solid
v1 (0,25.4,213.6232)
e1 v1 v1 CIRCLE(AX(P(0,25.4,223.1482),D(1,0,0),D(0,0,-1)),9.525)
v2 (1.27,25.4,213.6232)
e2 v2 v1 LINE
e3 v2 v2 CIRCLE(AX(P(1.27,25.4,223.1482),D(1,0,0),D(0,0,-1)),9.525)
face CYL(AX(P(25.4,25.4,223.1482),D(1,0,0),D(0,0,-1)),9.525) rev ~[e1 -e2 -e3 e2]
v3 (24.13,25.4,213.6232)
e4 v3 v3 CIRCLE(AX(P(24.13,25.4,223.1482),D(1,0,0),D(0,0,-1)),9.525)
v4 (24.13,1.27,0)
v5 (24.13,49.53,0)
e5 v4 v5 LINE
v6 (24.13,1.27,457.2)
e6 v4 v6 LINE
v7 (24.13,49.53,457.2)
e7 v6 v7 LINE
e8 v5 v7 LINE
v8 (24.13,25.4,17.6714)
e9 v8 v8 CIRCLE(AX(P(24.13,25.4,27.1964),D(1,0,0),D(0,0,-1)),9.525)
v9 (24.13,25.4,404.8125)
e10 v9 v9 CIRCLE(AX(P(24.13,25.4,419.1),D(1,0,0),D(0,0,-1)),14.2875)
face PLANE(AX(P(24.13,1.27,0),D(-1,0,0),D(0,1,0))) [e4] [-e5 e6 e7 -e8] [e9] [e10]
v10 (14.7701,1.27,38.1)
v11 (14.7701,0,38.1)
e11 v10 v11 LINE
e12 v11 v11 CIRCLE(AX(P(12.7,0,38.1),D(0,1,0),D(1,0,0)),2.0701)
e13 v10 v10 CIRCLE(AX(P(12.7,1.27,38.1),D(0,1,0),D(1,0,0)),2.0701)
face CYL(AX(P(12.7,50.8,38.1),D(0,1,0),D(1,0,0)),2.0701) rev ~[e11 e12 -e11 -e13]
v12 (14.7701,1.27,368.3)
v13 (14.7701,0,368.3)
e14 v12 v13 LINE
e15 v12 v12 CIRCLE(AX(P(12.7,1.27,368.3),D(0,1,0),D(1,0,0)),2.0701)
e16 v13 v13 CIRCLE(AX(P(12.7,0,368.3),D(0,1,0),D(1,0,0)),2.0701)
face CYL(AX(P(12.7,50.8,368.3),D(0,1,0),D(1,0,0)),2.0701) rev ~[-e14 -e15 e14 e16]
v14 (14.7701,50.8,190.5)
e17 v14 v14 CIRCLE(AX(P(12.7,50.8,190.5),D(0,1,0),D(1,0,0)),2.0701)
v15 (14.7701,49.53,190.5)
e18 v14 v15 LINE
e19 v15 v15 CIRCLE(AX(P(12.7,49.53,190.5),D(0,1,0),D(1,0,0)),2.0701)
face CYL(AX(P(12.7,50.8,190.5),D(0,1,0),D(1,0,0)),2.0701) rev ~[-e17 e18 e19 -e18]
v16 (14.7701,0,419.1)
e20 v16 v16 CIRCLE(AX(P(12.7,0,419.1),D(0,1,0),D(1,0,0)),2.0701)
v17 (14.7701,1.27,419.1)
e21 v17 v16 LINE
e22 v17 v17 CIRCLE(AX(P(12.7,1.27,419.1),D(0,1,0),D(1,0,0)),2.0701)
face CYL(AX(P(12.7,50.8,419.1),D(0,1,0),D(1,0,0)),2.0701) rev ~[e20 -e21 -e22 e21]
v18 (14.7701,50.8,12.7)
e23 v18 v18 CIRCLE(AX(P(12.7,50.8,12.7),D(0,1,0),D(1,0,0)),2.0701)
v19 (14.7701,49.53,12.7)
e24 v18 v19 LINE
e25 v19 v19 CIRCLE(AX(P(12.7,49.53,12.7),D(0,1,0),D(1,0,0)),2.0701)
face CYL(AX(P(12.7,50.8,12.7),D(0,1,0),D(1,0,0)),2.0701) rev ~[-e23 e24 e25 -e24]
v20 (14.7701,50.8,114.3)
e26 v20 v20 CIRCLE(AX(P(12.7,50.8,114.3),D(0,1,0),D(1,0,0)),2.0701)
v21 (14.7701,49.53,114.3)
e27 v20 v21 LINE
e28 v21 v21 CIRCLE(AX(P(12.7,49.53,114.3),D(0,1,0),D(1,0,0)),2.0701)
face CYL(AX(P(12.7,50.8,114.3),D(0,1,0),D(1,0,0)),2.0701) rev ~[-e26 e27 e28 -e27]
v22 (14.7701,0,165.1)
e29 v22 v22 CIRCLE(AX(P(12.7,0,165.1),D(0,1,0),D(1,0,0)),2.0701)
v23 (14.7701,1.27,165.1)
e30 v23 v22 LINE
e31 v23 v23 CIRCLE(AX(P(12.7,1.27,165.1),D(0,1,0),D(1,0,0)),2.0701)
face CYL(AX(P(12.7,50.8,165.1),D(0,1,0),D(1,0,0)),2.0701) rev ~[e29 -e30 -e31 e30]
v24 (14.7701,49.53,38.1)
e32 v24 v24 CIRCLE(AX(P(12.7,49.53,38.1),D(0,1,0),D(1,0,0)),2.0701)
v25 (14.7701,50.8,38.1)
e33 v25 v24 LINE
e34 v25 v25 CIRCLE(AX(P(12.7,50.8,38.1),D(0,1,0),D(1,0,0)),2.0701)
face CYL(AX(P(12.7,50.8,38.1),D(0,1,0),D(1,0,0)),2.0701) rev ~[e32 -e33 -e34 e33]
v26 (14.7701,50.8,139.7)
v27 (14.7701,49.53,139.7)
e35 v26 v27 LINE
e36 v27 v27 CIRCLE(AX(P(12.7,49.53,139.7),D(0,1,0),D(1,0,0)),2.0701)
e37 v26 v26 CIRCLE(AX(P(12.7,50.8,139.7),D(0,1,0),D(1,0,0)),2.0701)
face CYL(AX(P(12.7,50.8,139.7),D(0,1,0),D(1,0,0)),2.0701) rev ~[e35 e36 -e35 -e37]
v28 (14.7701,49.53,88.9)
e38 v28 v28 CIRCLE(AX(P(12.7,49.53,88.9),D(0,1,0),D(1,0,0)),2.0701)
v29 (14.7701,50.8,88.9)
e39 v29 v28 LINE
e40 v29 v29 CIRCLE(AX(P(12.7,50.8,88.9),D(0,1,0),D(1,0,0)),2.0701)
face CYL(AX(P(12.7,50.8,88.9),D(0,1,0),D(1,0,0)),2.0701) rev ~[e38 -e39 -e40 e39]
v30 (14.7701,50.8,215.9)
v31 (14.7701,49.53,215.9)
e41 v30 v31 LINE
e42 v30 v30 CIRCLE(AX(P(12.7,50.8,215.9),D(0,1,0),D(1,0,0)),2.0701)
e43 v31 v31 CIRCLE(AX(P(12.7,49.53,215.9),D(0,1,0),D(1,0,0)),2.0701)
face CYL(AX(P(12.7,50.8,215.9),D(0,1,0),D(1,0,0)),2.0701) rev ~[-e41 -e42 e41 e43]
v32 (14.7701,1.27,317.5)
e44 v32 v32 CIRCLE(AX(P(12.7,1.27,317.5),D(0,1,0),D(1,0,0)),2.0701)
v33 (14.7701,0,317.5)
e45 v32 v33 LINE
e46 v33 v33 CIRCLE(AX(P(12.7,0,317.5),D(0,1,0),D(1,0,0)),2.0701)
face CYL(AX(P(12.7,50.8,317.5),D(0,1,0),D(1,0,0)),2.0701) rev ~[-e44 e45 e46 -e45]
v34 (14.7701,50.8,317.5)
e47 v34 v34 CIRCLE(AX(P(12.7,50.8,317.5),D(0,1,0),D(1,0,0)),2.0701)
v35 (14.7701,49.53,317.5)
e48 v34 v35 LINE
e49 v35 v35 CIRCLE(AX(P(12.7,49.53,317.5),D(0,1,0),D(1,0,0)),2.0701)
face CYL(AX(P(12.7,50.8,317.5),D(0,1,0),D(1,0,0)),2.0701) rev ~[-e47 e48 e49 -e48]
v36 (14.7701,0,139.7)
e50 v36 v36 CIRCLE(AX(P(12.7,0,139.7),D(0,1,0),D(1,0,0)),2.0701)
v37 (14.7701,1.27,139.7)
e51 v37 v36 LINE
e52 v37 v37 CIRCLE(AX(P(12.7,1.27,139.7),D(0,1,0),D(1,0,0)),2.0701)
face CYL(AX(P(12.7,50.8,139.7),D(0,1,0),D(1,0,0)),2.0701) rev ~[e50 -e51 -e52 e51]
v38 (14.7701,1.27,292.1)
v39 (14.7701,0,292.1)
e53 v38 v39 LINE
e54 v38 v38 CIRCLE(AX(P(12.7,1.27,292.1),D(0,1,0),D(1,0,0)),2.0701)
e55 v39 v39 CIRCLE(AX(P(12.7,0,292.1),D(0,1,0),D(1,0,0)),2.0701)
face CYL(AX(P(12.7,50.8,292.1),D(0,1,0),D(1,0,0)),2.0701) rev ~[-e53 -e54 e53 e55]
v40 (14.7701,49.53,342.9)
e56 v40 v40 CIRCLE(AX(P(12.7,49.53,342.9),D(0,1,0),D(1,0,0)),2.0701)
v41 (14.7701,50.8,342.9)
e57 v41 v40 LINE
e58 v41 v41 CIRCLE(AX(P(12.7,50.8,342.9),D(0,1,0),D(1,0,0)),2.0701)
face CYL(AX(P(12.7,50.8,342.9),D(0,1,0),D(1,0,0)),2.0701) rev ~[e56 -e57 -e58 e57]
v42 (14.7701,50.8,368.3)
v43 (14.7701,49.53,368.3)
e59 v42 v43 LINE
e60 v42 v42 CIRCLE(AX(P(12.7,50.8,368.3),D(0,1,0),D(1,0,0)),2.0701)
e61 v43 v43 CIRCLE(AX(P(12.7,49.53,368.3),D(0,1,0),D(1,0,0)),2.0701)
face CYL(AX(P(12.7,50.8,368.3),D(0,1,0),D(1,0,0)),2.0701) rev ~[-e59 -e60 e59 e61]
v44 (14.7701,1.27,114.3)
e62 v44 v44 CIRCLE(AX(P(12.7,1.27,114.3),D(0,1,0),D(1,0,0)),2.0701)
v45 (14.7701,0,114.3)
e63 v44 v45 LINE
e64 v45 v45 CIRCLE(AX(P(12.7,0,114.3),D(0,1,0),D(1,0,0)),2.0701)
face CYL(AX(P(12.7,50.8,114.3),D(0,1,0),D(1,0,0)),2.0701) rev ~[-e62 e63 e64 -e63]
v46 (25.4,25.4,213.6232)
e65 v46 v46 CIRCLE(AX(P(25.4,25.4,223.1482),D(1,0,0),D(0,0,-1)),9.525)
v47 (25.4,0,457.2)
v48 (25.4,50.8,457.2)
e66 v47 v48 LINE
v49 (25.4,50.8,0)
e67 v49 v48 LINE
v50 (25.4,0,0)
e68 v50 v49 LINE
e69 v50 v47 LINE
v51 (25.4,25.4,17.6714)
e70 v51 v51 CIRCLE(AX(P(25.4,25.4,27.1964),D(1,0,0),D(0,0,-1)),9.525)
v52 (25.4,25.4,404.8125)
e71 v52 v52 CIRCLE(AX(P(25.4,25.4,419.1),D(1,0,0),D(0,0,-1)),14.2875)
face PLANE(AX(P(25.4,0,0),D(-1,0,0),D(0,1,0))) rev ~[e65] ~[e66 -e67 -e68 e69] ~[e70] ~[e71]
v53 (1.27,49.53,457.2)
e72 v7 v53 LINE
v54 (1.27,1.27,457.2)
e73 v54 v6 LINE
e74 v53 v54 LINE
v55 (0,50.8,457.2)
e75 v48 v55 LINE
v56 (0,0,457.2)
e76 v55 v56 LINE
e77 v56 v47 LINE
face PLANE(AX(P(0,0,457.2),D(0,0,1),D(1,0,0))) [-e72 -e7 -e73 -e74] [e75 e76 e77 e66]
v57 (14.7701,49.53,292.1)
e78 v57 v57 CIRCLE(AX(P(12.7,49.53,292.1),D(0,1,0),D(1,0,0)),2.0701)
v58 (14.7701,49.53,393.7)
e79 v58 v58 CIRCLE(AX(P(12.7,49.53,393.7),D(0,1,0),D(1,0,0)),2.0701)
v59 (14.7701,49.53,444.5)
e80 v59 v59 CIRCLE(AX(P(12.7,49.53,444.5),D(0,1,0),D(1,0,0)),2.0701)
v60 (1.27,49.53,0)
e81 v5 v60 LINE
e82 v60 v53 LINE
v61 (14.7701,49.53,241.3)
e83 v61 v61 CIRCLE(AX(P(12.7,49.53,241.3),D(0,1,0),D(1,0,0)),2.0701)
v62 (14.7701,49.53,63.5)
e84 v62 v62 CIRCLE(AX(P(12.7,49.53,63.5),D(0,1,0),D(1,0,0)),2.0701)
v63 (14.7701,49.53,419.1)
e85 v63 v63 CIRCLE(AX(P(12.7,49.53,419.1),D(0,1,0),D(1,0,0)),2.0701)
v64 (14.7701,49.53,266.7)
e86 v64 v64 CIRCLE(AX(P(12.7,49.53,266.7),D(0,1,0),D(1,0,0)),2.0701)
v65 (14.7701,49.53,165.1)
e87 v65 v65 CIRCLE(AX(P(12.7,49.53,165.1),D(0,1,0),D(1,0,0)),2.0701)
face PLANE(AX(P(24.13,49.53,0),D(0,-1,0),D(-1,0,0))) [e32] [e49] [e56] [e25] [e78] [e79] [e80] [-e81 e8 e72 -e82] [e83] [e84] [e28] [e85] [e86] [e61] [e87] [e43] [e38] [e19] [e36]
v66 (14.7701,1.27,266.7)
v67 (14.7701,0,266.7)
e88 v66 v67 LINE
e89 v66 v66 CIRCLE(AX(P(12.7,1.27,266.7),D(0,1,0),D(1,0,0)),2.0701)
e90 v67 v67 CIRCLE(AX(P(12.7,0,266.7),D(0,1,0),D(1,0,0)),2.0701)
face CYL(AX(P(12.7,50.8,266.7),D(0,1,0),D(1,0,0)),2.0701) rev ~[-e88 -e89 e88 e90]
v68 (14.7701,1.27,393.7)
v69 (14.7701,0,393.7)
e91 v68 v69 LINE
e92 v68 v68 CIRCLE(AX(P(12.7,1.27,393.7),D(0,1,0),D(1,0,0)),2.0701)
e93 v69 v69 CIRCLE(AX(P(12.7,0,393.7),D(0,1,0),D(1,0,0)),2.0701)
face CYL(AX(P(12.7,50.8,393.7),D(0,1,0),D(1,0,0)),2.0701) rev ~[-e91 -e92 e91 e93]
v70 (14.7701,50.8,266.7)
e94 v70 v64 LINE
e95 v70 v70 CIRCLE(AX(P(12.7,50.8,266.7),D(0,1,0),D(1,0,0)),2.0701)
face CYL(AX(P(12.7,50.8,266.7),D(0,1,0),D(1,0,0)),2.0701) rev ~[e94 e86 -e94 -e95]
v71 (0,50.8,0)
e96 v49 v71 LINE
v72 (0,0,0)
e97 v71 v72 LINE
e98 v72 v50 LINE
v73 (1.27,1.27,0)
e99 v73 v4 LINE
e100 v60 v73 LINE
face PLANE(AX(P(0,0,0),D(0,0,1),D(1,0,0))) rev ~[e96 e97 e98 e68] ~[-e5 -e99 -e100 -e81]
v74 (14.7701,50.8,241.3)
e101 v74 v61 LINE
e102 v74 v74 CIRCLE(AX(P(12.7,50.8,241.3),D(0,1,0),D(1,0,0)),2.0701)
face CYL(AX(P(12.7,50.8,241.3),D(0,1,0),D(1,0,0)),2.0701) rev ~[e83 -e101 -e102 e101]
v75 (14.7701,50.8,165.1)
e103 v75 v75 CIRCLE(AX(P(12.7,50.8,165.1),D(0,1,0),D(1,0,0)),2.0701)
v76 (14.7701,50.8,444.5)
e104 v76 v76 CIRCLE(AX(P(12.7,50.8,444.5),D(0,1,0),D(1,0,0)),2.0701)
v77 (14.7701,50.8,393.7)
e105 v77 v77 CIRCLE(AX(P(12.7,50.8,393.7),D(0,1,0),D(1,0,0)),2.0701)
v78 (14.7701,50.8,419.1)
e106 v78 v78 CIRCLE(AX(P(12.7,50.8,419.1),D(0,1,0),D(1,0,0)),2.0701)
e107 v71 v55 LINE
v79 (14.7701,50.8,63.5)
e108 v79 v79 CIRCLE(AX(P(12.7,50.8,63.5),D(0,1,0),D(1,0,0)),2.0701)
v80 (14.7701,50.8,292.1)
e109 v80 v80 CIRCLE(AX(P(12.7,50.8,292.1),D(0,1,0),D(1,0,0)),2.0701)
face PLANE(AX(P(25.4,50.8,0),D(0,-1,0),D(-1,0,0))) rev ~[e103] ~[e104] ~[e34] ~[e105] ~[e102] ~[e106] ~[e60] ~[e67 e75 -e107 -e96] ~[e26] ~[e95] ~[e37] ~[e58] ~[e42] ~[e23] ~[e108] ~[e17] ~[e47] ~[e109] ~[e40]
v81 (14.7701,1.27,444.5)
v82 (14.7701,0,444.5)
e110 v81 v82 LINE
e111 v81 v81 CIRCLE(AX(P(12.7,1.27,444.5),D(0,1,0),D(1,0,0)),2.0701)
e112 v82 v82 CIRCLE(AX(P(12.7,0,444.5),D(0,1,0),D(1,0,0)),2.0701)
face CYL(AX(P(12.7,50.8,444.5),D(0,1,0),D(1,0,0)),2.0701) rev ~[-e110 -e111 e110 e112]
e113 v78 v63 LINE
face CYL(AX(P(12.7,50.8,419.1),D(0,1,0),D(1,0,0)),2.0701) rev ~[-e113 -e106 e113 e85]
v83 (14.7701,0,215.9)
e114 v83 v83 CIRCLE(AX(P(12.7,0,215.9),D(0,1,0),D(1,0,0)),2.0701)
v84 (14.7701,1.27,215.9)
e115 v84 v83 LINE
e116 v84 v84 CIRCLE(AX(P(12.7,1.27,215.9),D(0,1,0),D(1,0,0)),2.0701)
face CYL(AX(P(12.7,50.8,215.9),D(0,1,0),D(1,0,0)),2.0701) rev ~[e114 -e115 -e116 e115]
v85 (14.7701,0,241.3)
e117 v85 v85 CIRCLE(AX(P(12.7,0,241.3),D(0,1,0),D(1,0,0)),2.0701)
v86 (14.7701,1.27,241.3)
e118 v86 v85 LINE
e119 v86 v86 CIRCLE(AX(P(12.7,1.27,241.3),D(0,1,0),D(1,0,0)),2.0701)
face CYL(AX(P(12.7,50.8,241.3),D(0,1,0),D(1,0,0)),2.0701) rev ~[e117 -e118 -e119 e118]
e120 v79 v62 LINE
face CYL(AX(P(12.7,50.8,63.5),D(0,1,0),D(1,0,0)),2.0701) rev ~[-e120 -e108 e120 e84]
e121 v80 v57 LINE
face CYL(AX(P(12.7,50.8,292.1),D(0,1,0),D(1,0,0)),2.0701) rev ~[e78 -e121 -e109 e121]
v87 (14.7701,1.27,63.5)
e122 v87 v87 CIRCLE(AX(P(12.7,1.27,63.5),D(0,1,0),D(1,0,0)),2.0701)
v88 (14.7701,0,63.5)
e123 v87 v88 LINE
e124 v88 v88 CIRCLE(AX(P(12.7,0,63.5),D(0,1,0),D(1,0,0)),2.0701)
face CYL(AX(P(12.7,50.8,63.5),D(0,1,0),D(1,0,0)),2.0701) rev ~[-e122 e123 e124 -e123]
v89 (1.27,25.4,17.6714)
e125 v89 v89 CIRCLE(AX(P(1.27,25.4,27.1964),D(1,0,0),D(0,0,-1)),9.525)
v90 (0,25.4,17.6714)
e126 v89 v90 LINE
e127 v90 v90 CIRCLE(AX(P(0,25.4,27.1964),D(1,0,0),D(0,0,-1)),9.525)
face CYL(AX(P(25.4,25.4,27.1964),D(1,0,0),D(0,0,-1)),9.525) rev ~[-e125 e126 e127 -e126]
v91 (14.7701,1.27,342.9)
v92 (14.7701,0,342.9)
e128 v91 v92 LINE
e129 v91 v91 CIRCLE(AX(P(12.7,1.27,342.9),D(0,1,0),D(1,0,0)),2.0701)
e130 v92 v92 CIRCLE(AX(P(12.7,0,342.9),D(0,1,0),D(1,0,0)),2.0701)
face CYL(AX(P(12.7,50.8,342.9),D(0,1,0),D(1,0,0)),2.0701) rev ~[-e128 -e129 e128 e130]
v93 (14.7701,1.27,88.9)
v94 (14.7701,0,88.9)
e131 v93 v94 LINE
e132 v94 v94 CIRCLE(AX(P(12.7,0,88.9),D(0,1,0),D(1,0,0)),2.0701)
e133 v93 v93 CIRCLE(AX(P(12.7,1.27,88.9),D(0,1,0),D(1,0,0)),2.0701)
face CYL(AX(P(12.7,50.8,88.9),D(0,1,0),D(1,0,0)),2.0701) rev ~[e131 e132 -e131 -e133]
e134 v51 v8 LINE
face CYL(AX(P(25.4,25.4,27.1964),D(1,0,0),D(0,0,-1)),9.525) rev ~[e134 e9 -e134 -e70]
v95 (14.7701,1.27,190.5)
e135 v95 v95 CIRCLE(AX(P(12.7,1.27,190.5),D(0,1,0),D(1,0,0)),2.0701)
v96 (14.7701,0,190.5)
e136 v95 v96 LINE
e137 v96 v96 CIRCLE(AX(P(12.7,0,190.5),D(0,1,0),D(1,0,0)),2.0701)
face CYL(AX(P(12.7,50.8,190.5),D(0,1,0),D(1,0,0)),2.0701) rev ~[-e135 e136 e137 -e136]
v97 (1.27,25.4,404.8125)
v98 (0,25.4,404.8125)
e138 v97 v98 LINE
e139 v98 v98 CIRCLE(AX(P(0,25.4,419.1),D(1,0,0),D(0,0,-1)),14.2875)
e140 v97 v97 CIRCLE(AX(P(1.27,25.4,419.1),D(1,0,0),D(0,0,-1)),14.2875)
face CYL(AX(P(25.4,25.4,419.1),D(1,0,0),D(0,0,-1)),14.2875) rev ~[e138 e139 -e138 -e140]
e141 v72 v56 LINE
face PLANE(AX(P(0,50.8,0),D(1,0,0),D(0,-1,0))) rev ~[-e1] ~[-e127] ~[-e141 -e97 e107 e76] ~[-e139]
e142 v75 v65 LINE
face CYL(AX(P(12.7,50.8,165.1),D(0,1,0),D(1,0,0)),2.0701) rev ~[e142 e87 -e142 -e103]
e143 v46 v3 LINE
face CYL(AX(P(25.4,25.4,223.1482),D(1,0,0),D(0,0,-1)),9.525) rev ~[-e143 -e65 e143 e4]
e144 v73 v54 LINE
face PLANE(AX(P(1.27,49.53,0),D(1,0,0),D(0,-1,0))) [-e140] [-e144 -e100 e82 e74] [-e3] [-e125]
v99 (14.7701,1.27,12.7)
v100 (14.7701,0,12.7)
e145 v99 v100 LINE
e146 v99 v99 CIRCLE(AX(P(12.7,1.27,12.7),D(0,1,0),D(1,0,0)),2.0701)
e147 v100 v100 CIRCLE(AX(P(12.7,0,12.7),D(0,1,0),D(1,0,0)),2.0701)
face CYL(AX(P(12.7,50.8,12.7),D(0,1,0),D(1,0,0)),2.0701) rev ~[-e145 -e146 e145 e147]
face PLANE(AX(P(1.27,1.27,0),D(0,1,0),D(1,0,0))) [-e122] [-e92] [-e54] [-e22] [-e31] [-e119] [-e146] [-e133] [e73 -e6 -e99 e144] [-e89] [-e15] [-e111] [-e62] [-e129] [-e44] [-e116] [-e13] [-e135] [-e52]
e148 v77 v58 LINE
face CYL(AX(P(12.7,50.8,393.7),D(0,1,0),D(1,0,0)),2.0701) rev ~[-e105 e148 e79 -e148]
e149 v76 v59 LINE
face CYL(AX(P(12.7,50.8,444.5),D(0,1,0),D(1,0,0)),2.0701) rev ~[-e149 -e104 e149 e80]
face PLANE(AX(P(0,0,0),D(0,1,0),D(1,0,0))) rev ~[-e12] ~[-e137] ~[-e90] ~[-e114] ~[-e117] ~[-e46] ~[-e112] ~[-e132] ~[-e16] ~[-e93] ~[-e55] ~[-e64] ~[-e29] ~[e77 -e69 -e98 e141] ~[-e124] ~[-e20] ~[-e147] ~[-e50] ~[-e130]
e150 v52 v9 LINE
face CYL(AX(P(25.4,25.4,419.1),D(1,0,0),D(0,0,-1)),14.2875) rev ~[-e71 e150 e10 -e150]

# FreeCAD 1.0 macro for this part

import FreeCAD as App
import Part
import Sketcher
Q = App.Units.Quantity

doc = App.newDocument("Part")
body = doc.addObject("PartDesign::Body", "Body")

sketch1 = doc.addObject("Sketcher::SketchObject", "Sketch")
body.addObject(sketch1)
sketch1.AttachmentSupport = (doc.XY_Plane, [""])
sketch1.MapMode = "FlatFace"
sketch1.addGeometry([
    Part.LineSegment(App.Vector(0, 50.8, 0), App.Vector(0, 0, 0)),
    Part.LineSegment(App.Vector(0, 0, 0), App.Vector(25.4, 0, 0)),
    Part.LineSegment(App.Vector(25.4, 0, 0), App.Vector(25.4, 50.8, 0)),
    Part.LineSegment(App.Vector(25.4, 50.8, 0), App.Vector(0, 50.8, 0)),
    Part.LineSegment(App.Vector(24.13, 1.27, 0), App.Vector(1.27, 1.27, 0)),
    Part.LineSegment(App.Vector(1.27, 1.27, 0), App.Vector(1.27, 49.53, 0)),
    Part.LineSegment(App.Vector(1.27, 49.53, 0), App.Vector(24.13, 49.53, 0)),
    Part.LineSegment(App.Vector(24.13, 49.53, 0), App.Vector(24.13, 1.27, 0)),
], False)
sketch1.addConstraint([
    Sketcher.Constraint("Coincident", 0, 2, 1, 1),
    Sketcher.Constraint("Coincident", 1, 2, 2, 1),
    Sketcher.Constraint("Coincident", 2, 2, 3, 1),
    Sketcher.Constraint("Coincident", 3, 2, 0, 1),
    Sketcher.Constraint("Coincident", 4, 2, 5, 1),
    Sketcher.Constraint("Coincident", 5, 2, 6, 1),
    Sketcher.Constraint("Coincident", 6, 2, 7, 1),
    Sketcher.Constraint("Coincident", 7, 2, 4, 1),
    Sketcher.Constraint("Vertical", 0),
    Sketcher.Constraint("Horizontal", 1),
    Sketcher.Constraint("Vertical", 2),
    Sketcher.Constraint("Horizontal", 3),
    Sketcher.Constraint("Horizontal", 4),
    Sketcher.Constraint("Vertical", 5),
    Sketcher.Constraint("Horizontal", 6),
    Sketcher.Constraint("Vertical", 7),
    Sketcher.Constraint("Coincident", 0, 2, -1, 1),
    Sketcher.Constraint("DistanceX", 1, 1, 1, 2, Q("1 in")),
    Sketcher.Constraint("DistanceY", 0, 2, 0, 1, Q("2 in")),
    Sketcher.Constraint("DistanceX", -1, 1, 4, 2, Q("0.05 in")),
    Sketcher.Constraint("DistanceY", -1, 1, 4, 2, Q("0.05 in")),
    Sketcher.Constraint("DistanceY", 5, 2, 3, 2, Q("0.05 in")),
    Sketcher.Constraint("DistanceX", 6, 2, 2, 2, Q("0.05 in")),
])
pad1 = doc.addObject("PartDesign::Pad", "Pad")
body.addObject(pad1)
pad1.Profile = sketch1
pad1.Length = Q("18 in")

sketch2 = doc.addObject("Sketcher::SketchObject", "Sketch001")
body.addObject(sketch2)
sketch2.AttachmentSupport = (doc.XZ_Plane, [""])
sketch2.MapMode = "FlatFace"
sketch2.AttachmentOffset = App.Placement(App.Vector(0, 0, -2 * 25.4), App.Rotation())
sketch2.addGeometry(Part.Circle(App.Vector(12.7, 12.7, 0), App.Vector(0, 0, 1), 2.0701), False)
sketch2.addConstraint([
    Sketcher.Constraint("Diameter", 0, Q("0.163 in")),
    Sketcher.Constraint("DistanceX", -1, 1, 0, 3, Q("0.5 in")),
    Sketcher.Constraint("DistanceY", -1, 1, 0, 3, Q("0.5 in")),
])
pocket1 = doc.addObject("PartDesign::Pocket", "Pocket")
body.addObject(pocket1)
pocket1.Profile = sketch2
pocket1.Length = Q("18 in")
pocket1.Reversed = True
doc.recompute()

linearpattern = doc.addObject("PartDesign::LinearPattern", "LinearPattern")
body.addObject(linearpattern)
linearpattern.Originals = [pocket1]
linearpattern.Direction = (doc.Z_Axis, [""])
linearpattern.Mode = "offset"
linearpattern.Offset = Q("1 in")
linearpattern.Occurrences = 18
body.Tip = linearpattern

sketch3 = doc.addObject("Sketcher::SketchObject", "Sketch002")
body.addObject(sketch3)
sketch3.AttachmentSupport = (doc.YZ_Plane, [""])
sketch3.MapMode = "FlatFace"
sketch3.AttachmentOffset = App.Placement(App.Vector(0, 0, 1 * 25.4), App.Rotation())
sketch3.addGeometry([
    Part.Circle(App.Vector(25.4, 419.1, 0), App.Vector(0, 0, 1), 14.2875),
    Part.Circle(App.Vector(25.4, 223.1482, 0), App.Vector(0, 0, 1), 9.525),
    Part.Circle(App.Vector(25.4, 27.1964, 0), App.Vector(0, 0, 1), 9.525),
], False)
sketch3.addConstraint([
    Sketcher.Constraint("Equal", 1, 2),
    Sketcher.Constraint("Vertical", 0, 3, 1, 3),
    Sketcher.Constraint("Vertical", 1, 3, 2, 3),
    Sketcher.Constraint("Diameter", 1, Q("0.75 in")),
    Sketcher.Constraint("Diameter", 0, Q("1.125 in")),
    Sketcher.Constraint("DistanceX", -1, 1, 0, 3, Q("1 in")),
    Sketcher.Constraint("DistanceY", -1, 1, 0, 3, Q("16.5 in")),
    Sketcher.Constraint("DistanceY", 1, 3, 0, 3, 195.9518),
    Sketcher.Constraint("DistanceY", 2, 3, 1, 3, 195.9518),
])
pocket2 = doc.addObject("PartDesign::Pocket", "Pocket001")
body.addObject(pocket2)
pocket2.Profile = sketch3
pocket2.Type = "ThroughAll"

doc.recompute()
